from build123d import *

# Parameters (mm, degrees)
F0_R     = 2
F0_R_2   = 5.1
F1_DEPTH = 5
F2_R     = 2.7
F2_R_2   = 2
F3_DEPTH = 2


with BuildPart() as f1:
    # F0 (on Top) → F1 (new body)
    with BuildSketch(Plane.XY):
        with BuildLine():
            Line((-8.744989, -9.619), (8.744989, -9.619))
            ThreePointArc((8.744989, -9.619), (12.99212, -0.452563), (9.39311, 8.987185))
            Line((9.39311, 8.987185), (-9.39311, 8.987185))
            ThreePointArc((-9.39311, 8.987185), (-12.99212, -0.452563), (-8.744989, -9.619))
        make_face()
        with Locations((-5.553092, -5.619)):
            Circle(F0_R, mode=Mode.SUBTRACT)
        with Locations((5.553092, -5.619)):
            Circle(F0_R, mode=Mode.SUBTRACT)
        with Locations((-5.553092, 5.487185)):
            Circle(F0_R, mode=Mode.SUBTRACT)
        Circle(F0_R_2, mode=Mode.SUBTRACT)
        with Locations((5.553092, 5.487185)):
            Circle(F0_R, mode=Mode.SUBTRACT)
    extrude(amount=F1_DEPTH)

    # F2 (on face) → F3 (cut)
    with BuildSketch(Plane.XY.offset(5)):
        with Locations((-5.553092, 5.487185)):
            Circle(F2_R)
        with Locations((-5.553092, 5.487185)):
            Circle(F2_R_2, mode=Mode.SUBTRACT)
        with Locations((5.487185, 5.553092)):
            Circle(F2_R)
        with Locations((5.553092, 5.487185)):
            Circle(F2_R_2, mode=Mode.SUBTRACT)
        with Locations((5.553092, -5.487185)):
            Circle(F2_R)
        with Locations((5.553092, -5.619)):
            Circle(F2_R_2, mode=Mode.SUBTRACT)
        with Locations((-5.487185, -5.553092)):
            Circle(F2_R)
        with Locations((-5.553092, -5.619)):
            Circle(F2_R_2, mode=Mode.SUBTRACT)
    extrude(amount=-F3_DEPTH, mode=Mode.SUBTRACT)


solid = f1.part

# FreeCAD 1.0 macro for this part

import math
import FreeCAD as App
import Part
import Sketcher
from FreeCAD import Vector

doc = App.newDocument("Part")
body = doc.addObject("PartDesign::Body", "Body")

# Sketch on XY plane
sketch1 = doc.addObject("Sketcher::SketchObject", "Sketch")
body.addObject(sketch1)
sketch1.AttachmentSupport = (doc.XY_Plane, [""])
sketch1.MapMode = "FlatFace"
sketch1.addGeometry(Part.LineSegment(Vector(-8.7, -9.6, 0), Vector(8.7, -9.6, 0)), False)
sketch1.addGeometry(Part.ArcOfCircle(Part.Circle(Vector(0, 0, 0), Vector(0, 0, 1), 13), math.radians(-48), math.radians(44)), False)
sketch1.addGeometry(Part.LineSegment(Vector(9.4, 9, 0), Vector(-9.4, 9, 0)), False)
sketch1.addGeometry(Part.ArcOfCircle(Part.Circle(Vector(0, 0, 0), Vector(0, 0, 1), 13), math.radians(136), math.radians(228)), False)
sketch1.addGeometry(Part.Circle(Vector(-5.6, -5.6, 0), Vector(0, 0, 1), 2), False)
sketch1.addGeometry(Part.Circle(Vector(5.6, -5.6, 0), Vector(0, 0, 1), 2), False)
sketch1.addGeometry(Part.Circle(Vector(-5.6, 5.5, 0), Vector(0, 0, 1), 2), False)
sketch1.addGeometry(Part.Circle(Vector(0, 0, 0), Vector(0, 0, 1), 5.1), False)
sketch1.addGeometry(Part.Circle(Vector(5.6, 5.5, 0), Vector(0, 0, 1), 2), False)
sketch1.addConstraint(Sketcher.Constraint("Coincident", 0, 2, 1, 1))
sketch1.addConstraint(Sketcher.Constraint("Coincident", 1, 2, 2, 1))
sketch1.addConstraint(Sketcher.Constraint("Coincident", 2, 2, 3, 1))
sketch1.addConstraint(Sketcher.Constraint("Coincident", 3, 2, 0, 1))
sketch1.addConstraint(Sketcher.Constraint("Horizontal", 0))
sketch1.addConstraint(Sketcher.Constraint("Horizontal", 2))
sketch1.addConstraint(Sketcher.Constraint("Coincident", 1, 3, -1, 1))
sketch1.addConstraint(Sketcher.Constraint("Coincident", 3, 3, -1, 1))
sketch1.addConstraint(Sketcher.Constraint("Coincident", 7, 3, -1, 1))
sketch1.addConstraint(Sketcher.Constraint("Equal", 1, 3))
sketch1.addConstraint(Sketcher.Constraint("Equal", 4, 5))
sketch1.addConstraint(Sketcher.Constraint("Equal", 5, 6))
sketch1.addConstraint(Sketcher.Constraint("Equal", 6, 8))
sketch1.addConstraint(Sketcher.Constraint("Symmetric", 4, 3, 5, 3, -2))
sketch1.addConstraint(Sketcher.Constraint("Symmetric", 6, 3, 8, 3, -2))
sketch1.addConstraint(Sketcher.Constraint("Vertical", 4, 3, 6, 3))
sketch1.addConstraint(Sketcher.Constraint("Diameter", 4, 4.0))
sketch1.addConstraint(Sketcher.Constraint("Radius", 1, 13.000001))
sketch1.addConstraint(Sketcher.Constraint("Diameter", 7, 10.2))
sketch1.addConstraint(Sketcher.Constraint("DistanceY", 0, 2, 5, 3, 4.0))
sketch1.addConstraint(Sketcher.Constraint("DistanceY", 8, 3, 1, 2, 3.5))
sketch1.addConstraint(Sketcher.Constraint("DistanceY", 4, 3, -1, 1, 5.619))
sketch1.addConstraint(Sketcher.Constraint("DistanceX", 2, 2, 2, 1, 18.78622))
sketch1.addConstraint(Sketcher.Constraint("DistanceX", 4, 3, 1, 3, 5.553091))
pad1 = doc.addObject("PartDesign::Pad", "Pad")
body.addObject(pad1)
pad1.Profile = sketch1
pad1.Length = 5

# Sketch on XY plane
sketch2 = doc.addObject("Sketcher::SketchObject", "Sketch001")
body.addObject(sketch2)
sketch2.AttachmentSupport = (doc.XY_Plane, [""])
sketch2.MapMode = "FlatFace"
sketch2.AttachmentOffset = App.Placement(Vector(0, 0, 5), App.Rotation())
sketch2.addGeometry(Part.Circle(Vector(-5.6, 5.5, 0), Vector(0, 0, 1), 2.7), False)
sketch2.addGeometry(Part.Circle(Vector(-5.6, 5.5, 0), Vector(0, 0, 1), 2), False)
sketch2.addGeometry(Part.Circle(Vector(5.5, 5.6, 0), Vector(0, 0, 1), 2.7), False)
sketch2.addGeometry(Part.Circle(Vector(5.6, 5.5, 0), Vector(0, 0, 1), 2), False)
sketch2.addGeometry(Part.Circle(Vector(5.6, -5.5, 0), Vector(0, 0, 1), 2.7), False)
sketch2.addGeometry(Part.Circle(Vector(5.6, -5.6, 0), Vector(0, 0, 1), 2), False)
sketch2.addGeometry(Part.Circle(Vector(-5.5, -5.6, 0), Vector(0, 0, 1), 2.7), False)
sketch2.addGeometry(Part.Circle(Vector(-5.6, -5.6, 0), Vector(0, 0, 1), 2), False)
sketch2.addConstraint(Sketcher.Constraint("Coincident", 1, 3, 0, 3))
sketch2.addConstraint(Sketcher.Constraint("Equal", 0, 2))
sketch2.addConstraint(Sketcher.Constraint("Equal", 1, 3))
sketch2.addConstraint(Sketcher.Constraint("Equal", 2, 4))
sketch2.addConstraint(Sketcher.Constraint("Equal", 3, 5))
sketch2.addConstraint(Sketcher.Constraint("Equal", 4, 6))
sketch2.addConstraint(Sketcher.Constraint("Equal", 5, 7))
sketch2.addConstraint(Sketcher.Constraint("Symmetric", 0, 3, 4, 3, -1, 1))
sketch2.addConstraint(Sketcher.Constraint("Symmetric", 2, 3, 6, 3, -1, 1))
sketch2.addConstraint(Sketcher.Constraint("Symmetric", 0, 3, 3, 3, -2))
sketch2.addConstraint(Sketcher.Constraint("Symmetric", 5, 3, 7, 3, -2))
sketch2.addConstraint(Sketcher.Constraint("Vertical", 4, 3, 5, 3))
sketch2.addConstraint(Sketcher.Constraint("Diameter", 1, 4.0))
sketch2.addConstraint(Sketcher.Constraint("Diameter", 0, 5.4))
sketch2.addConstraint(Sketcher.Constraint("DistanceY", 5, 3, -1, 1, 5.619))
sketch2.addConstraint(Sketcher.Constraint("DistanceY", 4, 3, 3, 3, 10.97437))
sketch2.addConstraint(Sketcher.Constraint("DistanceY", 5, 3, 2, 3, 11.172092))
sketch2.addConstraint(Sketcher.Constraint("DistanceX", 0, 3, -1, 1, 5.553092))
sketch2.addConstraint(Sketcher.Constraint("DistanceX", -1, 1, 2, 3, 5.487185))
pocket1 = doc.addObject("PartDesign::Pocket", "Pocket")
body.addObject(pocket1)
pocket1.Profile = sketch2
pocket1.Length = 2

doc.recompute()
